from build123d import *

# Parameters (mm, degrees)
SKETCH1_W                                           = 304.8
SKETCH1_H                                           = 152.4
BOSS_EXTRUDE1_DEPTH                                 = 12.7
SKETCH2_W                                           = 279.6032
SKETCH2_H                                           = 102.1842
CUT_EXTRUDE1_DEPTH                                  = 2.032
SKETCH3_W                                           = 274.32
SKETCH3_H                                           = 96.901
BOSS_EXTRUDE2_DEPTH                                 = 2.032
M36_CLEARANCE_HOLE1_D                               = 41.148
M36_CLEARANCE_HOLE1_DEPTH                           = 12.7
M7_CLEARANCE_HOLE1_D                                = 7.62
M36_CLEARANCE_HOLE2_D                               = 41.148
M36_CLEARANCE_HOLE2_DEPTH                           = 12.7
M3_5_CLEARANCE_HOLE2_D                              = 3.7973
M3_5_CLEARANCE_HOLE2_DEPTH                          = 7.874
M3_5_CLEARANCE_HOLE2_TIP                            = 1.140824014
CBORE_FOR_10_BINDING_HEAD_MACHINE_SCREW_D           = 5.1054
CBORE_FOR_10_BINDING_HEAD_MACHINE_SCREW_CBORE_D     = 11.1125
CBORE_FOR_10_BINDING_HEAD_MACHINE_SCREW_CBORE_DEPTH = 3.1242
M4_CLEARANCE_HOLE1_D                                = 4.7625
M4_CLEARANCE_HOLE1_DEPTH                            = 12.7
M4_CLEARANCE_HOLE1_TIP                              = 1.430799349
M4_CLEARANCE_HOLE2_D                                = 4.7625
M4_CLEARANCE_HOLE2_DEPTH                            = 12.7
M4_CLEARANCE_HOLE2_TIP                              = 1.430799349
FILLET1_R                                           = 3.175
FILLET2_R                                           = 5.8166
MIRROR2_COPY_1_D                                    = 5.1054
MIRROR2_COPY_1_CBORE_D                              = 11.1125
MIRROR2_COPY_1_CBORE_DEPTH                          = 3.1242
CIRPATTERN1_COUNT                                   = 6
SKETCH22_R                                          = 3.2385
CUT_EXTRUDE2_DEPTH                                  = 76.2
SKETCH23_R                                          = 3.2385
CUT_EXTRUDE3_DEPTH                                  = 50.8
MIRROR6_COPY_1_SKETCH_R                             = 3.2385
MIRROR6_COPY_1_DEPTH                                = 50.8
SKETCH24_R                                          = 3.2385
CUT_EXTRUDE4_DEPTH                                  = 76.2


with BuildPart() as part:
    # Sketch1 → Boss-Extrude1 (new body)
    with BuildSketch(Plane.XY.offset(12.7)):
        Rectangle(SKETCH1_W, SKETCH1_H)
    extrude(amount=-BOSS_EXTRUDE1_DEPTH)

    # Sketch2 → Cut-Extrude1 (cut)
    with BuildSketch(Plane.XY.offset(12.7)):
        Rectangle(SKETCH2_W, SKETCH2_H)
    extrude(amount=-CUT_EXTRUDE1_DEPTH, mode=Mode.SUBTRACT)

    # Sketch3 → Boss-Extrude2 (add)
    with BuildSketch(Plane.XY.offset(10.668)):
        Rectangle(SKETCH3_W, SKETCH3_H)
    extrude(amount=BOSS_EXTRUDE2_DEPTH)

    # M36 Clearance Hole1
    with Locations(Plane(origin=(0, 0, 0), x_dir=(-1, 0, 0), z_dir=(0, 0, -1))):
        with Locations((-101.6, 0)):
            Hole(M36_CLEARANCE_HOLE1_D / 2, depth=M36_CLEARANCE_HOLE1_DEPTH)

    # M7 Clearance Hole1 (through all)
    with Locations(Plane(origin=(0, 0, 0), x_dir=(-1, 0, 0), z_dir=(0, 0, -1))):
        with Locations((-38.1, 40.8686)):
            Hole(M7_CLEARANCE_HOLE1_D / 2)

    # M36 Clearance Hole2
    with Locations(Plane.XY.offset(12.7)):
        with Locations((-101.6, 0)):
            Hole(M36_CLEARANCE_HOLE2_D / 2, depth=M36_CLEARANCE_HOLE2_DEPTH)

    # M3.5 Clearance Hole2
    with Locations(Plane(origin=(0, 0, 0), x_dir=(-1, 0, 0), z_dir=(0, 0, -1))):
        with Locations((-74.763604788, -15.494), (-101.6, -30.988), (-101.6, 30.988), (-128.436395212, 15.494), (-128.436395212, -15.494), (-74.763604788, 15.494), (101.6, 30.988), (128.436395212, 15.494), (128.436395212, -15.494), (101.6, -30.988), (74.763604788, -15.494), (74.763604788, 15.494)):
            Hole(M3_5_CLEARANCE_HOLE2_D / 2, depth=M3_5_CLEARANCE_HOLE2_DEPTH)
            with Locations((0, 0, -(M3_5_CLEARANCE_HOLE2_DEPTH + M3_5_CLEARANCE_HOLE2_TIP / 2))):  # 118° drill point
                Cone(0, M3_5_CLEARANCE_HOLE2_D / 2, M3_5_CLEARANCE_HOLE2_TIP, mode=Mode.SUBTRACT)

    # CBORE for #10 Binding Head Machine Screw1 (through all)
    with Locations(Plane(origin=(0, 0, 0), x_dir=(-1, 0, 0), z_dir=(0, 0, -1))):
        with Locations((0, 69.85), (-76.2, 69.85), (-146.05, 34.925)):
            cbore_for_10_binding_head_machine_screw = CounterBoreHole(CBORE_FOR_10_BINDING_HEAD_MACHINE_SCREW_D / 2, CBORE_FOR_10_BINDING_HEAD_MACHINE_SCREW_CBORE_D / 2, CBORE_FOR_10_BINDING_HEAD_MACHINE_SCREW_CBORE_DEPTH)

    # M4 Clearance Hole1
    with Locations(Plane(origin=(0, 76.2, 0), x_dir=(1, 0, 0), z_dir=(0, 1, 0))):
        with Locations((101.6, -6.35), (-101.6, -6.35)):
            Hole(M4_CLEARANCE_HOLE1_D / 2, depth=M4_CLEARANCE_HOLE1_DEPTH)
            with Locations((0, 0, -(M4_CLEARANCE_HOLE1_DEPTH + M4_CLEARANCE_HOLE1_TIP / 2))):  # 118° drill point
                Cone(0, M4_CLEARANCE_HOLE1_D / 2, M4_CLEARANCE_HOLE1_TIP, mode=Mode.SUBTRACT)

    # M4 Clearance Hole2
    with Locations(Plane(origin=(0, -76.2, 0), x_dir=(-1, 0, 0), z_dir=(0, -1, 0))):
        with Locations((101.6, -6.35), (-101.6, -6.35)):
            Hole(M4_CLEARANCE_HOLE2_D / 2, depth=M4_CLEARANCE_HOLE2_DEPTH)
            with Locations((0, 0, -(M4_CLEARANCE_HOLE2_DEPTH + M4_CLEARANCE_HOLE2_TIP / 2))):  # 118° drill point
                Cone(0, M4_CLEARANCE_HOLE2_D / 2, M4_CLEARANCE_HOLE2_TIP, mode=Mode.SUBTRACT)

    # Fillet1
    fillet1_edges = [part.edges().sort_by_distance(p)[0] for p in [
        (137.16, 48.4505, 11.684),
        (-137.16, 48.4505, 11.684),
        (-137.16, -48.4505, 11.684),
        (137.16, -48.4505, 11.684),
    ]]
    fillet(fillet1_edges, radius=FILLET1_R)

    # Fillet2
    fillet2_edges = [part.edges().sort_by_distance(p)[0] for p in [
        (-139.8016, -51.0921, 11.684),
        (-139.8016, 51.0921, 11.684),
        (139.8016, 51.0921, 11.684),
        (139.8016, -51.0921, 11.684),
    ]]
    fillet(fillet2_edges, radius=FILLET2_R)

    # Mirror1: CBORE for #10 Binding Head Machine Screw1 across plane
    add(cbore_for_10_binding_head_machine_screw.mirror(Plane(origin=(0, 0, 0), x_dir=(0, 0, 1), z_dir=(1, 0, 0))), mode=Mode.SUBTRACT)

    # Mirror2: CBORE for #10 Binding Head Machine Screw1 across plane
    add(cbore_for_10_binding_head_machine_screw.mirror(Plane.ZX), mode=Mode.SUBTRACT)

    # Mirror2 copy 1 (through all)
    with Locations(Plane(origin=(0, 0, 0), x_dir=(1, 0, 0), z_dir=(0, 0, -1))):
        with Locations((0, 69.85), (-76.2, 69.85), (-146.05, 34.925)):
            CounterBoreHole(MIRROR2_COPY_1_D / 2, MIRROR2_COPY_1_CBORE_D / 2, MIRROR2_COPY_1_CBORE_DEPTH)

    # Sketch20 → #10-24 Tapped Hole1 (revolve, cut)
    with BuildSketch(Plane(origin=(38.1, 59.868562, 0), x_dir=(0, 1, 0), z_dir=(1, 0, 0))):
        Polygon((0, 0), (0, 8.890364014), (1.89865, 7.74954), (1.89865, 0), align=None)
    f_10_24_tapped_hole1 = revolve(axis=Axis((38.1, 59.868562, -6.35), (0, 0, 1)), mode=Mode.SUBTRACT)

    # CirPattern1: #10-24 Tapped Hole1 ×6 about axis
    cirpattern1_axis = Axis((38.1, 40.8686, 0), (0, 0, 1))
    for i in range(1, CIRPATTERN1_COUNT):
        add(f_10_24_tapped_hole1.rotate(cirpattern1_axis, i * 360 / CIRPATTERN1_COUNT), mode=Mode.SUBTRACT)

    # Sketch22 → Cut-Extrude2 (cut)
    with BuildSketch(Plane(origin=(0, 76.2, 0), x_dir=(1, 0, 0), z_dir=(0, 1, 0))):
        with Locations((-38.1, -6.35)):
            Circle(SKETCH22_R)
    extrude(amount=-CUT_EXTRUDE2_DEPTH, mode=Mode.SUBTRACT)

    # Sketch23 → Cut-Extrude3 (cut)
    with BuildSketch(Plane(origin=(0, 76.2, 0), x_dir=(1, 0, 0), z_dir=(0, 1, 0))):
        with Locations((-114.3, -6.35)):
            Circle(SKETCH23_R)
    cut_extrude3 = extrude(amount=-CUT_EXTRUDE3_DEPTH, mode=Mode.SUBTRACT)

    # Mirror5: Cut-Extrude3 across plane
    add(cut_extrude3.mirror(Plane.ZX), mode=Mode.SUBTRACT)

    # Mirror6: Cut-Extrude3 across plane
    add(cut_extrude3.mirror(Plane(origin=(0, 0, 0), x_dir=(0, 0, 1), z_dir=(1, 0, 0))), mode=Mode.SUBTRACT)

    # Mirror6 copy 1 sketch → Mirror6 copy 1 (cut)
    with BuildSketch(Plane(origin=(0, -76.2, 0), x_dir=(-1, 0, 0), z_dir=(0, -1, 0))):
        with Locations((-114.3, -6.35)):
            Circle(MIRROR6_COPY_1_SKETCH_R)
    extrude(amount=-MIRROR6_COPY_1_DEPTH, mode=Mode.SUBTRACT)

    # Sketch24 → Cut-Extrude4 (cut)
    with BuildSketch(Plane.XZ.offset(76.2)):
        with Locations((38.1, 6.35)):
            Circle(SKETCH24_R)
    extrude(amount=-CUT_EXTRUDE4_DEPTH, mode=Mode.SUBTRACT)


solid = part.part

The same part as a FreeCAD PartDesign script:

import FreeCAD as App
import Part
import Sketcher
from FreeCAD import Vector
Q = App.Units.Quantity


def edges_at(feature, points):
    """Names of the edges that pass closest to the given points."""
    edges = feature.Shape.Edges
    near = lambda p: min(range(len(edges)), key=lambda i: edges[i].distToShape(Part.Vertex(*p))[0])
    return sorted({f"Edge{near(p) + 1}" for p in points})

doc = App.newDocument("Part")
params = doc.addObject("Spreadsheet::Sheet", "Params")
for row, (alias, value) in enumerate([
    ("sketch1_width", "12 in"),
    ("sketch1_height", "6 in"),
    ("pad1_length", "0.5 in"),
    ("sketch2_width", "11.008 in"),
    ("sketch2_height", "4.023 in"),
    ("pocket1_length", "0.08 in"),
    ("sketch3_width", "10.8 in"),
    ("sketch3_height", "3.815 in"),
    ("pad2_length", "0.08 in"),
    ("sketch4_diameter", "1.62 in"),
    ("hole_diameter", "1.62 in"),
    ("hole_depth", "0.5 in"),
    ("sketch5_diameter", "0.3 in"),
    ("hole2_diameter", "0.3 in"),
    ("sketch6_diameter", "1.62 in"),
    ("hole3_diameter", "1.62 in"),
    ("hole3_depth", "0.5 in"),
    ("hole4_diameter", "0.1495 in"),
    ("hole4_depth", "0.31 in"),
    ("sketch8_diameter", "0.201 in"),
    ("hole5_diameter", "0.201 in"),
    ("hole5_cbore_diameter", "0.4375 in"),
    ("hole5_cbore_depth", "0.123 in"),
    ("sketch9_diameter", "0.1875 in"),
    ("hole6_diameter", "0.1875 in"),
    ("hole6_depth", "0.5 in"),
    ("sketch10_diameter", "0.1875 in"),
    ("hole7_diameter", "0.1875 in"),
    ("hole7_depth", "0.5 in"),
    ("fillet_radius", "0.125 in"),
    ("fillet2_radius", "0.229 in"),
    ("sketch11_diameter", "0.201 in"),
    ("hole8_diameter", "0.201 in"),
    ("hole8_cbore_diameter", "0.4375 in"),
    ("hole8_cbore_depth", "0.123 in"),
    ("groove_angle", "360 deg"),
    ("sketch13_diameter", "0.255 in"),
    ("pocket2_length", "3 in"),
    ("sketch14_diameter", "0.255 in"),
    ("pocket3_length", "2 in"),
    ("sketch15_diameter", "0.255 in"),
    ("pocket4_length", "2 in"),
    ("sketch16_diameter", "0.255 in"),
    ("pocket5_length", "3 in"),
], start=1):
    params.set(f"A{row}", alias)
    params.set(f"B{row}", "=" + value)
    params.setAlias(f"B{row}", alias)

body = doc.addObject("PartDesign::Body", "Body")

# Sketch on XY plane
sketch1 = doc.addObject("Sketcher::SketchObject", "Sketch")
body.addObject(sketch1)
sketch1.AttachmentSupport = (doc.XY_Plane, [""])
sketch1.MapMode = "FlatFace"
sketch1.AttachmentOffset = App.Placement(Vector(0, 0, 0.5 * 25.4), App.Rotation())
sketch1.addGeometry(Part.LineSegment(Vector(-152.4, 76.2, 0), Vector(-152.4, -76.2, 0)), False)
sketch1.addGeometry(Part.LineSegment(Vector(-152.4, -76.2, 0), Vector(152.4, -76.2, 0)), False)
sketch1.addGeometry(Part.LineSegment(Vector(152.4, -76.2, 0), Vector(152.4, 76.2, 0)), False)
sketch1.addGeometry(Part.LineSegment(Vector(152.4, 76.2, 0), Vector(-152.4, 76.2, 0)), False)
sketch1.addConstraint(Sketcher.Constraint("Coincident", 0, 2, 1, 1))
sketch1.addConstraint(Sketcher.Constraint("Coincident", 1, 2, 2, 1))
sketch1.addConstraint(Sketcher.Constraint("Coincident", 2, 2, 3, 1))
sketch1.addConstraint(Sketcher.Constraint("Coincident", 3, 2, 0, 1))
sketch1.addConstraint(Sketcher.Constraint("Vertical", 0))
sketch1.addConstraint(Sketcher.Constraint("Horizontal", 1))
sketch1.addConstraint(Sketcher.Constraint("Vertical", 2))
sketch1.addConstraint(Sketcher.Constraint("Horizontal", 3))
sketch1.addConstraint(Sketcher.Constraint("Symmetric", 0, 2, 2, 2, -1, 1))
sketch1.addConstraint(Sketcher.Constraint("DistanceX", 1, 1, 1, 2, Q("12 in")))
sketch1.addConstraint(Sketcher.Constraint("DistanceY", 0, 2, 0, 1, Q("6 in")))
sketch1.setExpression("Constraints[9]", "Params.sketch1_width")
sketch1.setExpression("Constraints[10]", "Params.sketch1_height")
pad1 = doc.addObject("PartDesign::Pad", "Pad")
body.addObject(pad1)
pad1.Profile = sketch1
pad1.setExpression("Length", "Params.pad1_length")
pad1.Reversed = True

# Sketch on XY plane
sketch2 = doc.addObject("Sketcher::SketchObject", "Sketch001")
body.addObject(sketch2)
sketch2.AttachmentSupport = (doc.XY_Plane, [""])
sketch2.MapMode = "FlatFace"
sketch2.AttachmentOffset = App.Placement(Vector(0, 0, 0.5 * 25.4), App.Rotation())
sketch2.addGeometry(Part.LineSegment(Vector(-139.8016, 51.0921, 0), Vector(-139.8016, -51.0921, 0)), False)
sketch2.addGeometry(Part.LineSegment(Vector(-139.8016, -51.0921, 0), Vector(139.8016, -51.0921, 0)), False)
sketch2.addGeometry(Part.LineSegment(Vector(139.8016, -51.0921, 0), Vector(139.8016, 51.0921, 0)), False)
sketch2.addGeometry(Part.LineSegment(Vector(139.8016, 51.0921, 0), Vector(-139.8016, 51.0921, 0)), False)
sketch2.addConstraint(Sketcher.Constraint("Coincident", 0, 2, 1, 1))
sketch2.addConstraint(Sketcher.Constraint("Coincident", 1, 2, 2, 1))
sketch2.addConstraint(Sketcher.Constraint("Coincident", 2, 2, 3, 1))
sketch2.addConstraint(Sketcher.Constraint("Coincident", 3, 2, 0, 1))
sketch2.addConstraint(Sketcher.Constraint("Vertical", 0))
sketch2.addConstraint(Sketcher.Constraint("Horizontal", 1))
sketch2.addConstraint(Sketcher.Constraint("Vertical", 2))
sketch2.addConstraint(Sketcher.Constraint("Horizontal", 3))
sketch2.addConstraint(Sketcher.Constraint("Symmetric", 0, 2, 2, 2, -1, 1))
sketch2.addConstraint(Sketcher.Constraint("DistanceX", 1, 1, 1, 2, Q("11.008 in")))
sketch2.addConstraint(Sketcher.Constraint("DistanceY", 0, 2, 0, 1, Q("4.023 in")))
sketch2.setExpression("Constraints[9]", "Params.sketch2_width")
sketch2.setExpression("Constraints[10]", "Params.sketch2_height")
pocket1 = doc.addObject("PartDesign::Pocket", "Pocket")
body.addObject(pocket1)
pocket1.Profile = sketch2
pocket1.setExpression("Length", "Params.pocket1_length")

# Sketch on XY plane
sketch3 = doc.addObject("Sketcher::SketchObject", "Sketch002")
body.addObject(sketch3)
sketch3.AttachmentSupport = (doc.XY_Plane, [""])
sketch3.MapMode = "FlatFace"
sketch3.AttachmentOffset = App.Placement(Vector(0, 0, 0.42 * 25.4), App.Rotation())
sketch3.addGeometry(Part.LineSegment(Vector(-137.16, 48.4505, 0), Vector(-137.16, -48.4505, 0)), False)
sketch3.addGeometry(Part.LineSegment(Vector(-137.16, -48.4505, 0), Vector(137.16, -48.4505, 0)), False)
sketch3.addGeometry(Part.LineSegment(Vector(137.16, -48.4505, 0), Vector(137.16, 48.4505, 0)), False)
sketch3.addGeometry(Part.LineSegment(Vector(137.16, 48.4505, 0), Vector(-137.16, 48.4505, 0)), False)
sketch3.addConstraint(Sketcher.Constraint("Coincident", 0, 2, 1, 1))
sketch3.addConstraint(Sketcher.Constraint("Coincident", 1, 2, 2, 1))
sketch3.addConstraint(Sketcher.Constraint("Coincident", 2, 2, 3, 1))
sketch3.addConstraint(Sketcher.Constraint("Coincident", 3, 2, 0, 1))
sketch3.addConstraint(Sketcher.Constraint("Vertical", 0))
sketch3.addConstraint(Sketcher.Constraint("Horizontal", 1))
sketch3.addConstraint(Sketcher.Constraint("Vertical", 2))
sketch3.addConstraint(Sketcher.Constraint("Horizontal", 3))
sketch3.addConstraint(Sketcher.Constraint("Symmetric", 0, 2, 2, 2, -1, 1))
sketch3.addConstraint(Sketcher.Constraint("DistanceX", 1, 1, 1, 2, Q("10.8 in")))
sketch3.addConstraint(Sketcher.Constraint("DistanceY", 0, 2, 0, 1, Q("3.815 in")))
sketch3.setExpression("Constraints[9]", "Params.sketch3_width")
sketch3.setExpression("Constraints[10]", "Params.sketch3_height")
pad2 = doc.addObject("PartDesign::Pad", "Pad001")
body.addObject(pad2)
pad2.Profile = sketch3
pad2.setExpression("Length", "Params.pad2_length")

# Sketch on XY plane
sketch4 = doc.addObject("Sketcher::SketchObject", "Sketch003")
body.addObject(sketch4)
sketch4.AttachmentSupport = (doc.XY_Plane, [""])
sketch4.MapMode = "FlatFace"
sketch4.addGeometry(Part.Circle(Vector(101.6, 0, 0), Vector(0, 0, 1), 20.574), False)
sketch4.addConstraint(Sketcher.Constraint("PointOnObject", 0, 3, -1))
sketch4.addConstraint(Sketcher.Constraint("Diameter", 0, Q("1.62 in")))
sketch4.addConstraint(Sketcher.Constraint("DistanceX", -1, 1, 0, 3, Q("4 in")))
sketch4.setExpression("Constraints[1]", "Params.sketch4_diameter")
doc.recompute()
hole = doc.addObject("PartDesign::Hole", "Hole")
body.addObject(hole)
hole.Profile = sketch4
hole.ThreadType = "None"
hole.setExpression("Diameter", "Params.hole_diameter")
hole.DepthType = "Dimension"
hole.setExpression("Depth", "Params.hole_depth")
hole.DrillPoint = "Flat"
hole.Reversed = True

# Sketch on XY plane
sketch5 = doc.addObject("Sketcher::SketchObject", "Sketch004")
body.addObject(sketch5)
sketch5.AttachmentSupport = (doc.XY_Plane, [""])
sketch5.MapMode = "FlatFace"
sketch5.addGeometry(Part.Circle(Vector(38.1, 40.8686, 0), Vector(0, 0, 1), 3.81), False)
sketch5.addConstraint(Sketcher.Constraint("Diameter", 0, Q("0.3 in")))
sketch5.addConstraint(Sketcher.Constraint("DistanceX", -1, 1, 0, 3, Q("1.5 in")))
sketch5.addConstraint(Sketcher.Constraint("DistanceY", -1, 1, 0, 3, Q("1.609 in")))
sketch5.setExpression("Constraints[0]", "Params.sketch5_diameter")
doc.recompute()
hole2 = doc.addObject("PartDesign::Hole", "Hole001")
body.addObject(hole2)
hole2.Profile = sketch5
hole2.ThreadType = "None"
hole2.setExpression("Diameter", "Params.hole2_diameter")
hole2.DepthType = "ThroughAll"
hole2.Reversed = True

# Sketch on XY plane
sketch6 = doc.addObject("Sketcher::SketchObject", "Sketch005")
body.addObject(sketch6)
sketch6.AttachmentSupport = (doc.XY_Plane, [""])
sketch6.MapMode = "FlatFace"
sketch6.AttachmentOffset = App.Placement(Vector(0, 0, 0.5 * 25.4), App.Rotation())
sketch6.addGeometry(Part.Circle(Vector(-101.6, 0, 0), Vector(0, 0, 1), 20.574), False)
sketch6.addConstraint(Sketcher.Constraint("PointOnObject", 0, 3, -1))
sketch6.addConstraint(Sketcher.Constraint("Diameter", 0, Q("1.62 in")))
sketch6.addConstraint(Sketcher.Constraint("DistanceX", 0, 3, -1, 1, Q("4 in")))
sketch6.setExpression("Constraints[1]", "Params.sketch6_diameter")
doc.recompute()
hole3 = doc.addObject("PartDesign::Hole", "Hole002")
body.addObject(hole3)
hole3.Profile = sketch6
hole3.ThreadType = "None"
hole3.setExpression("Diameter", "Params.hole3_diameter")
hole3.DepthType = "Dimension"
hole3.setExpression("Depth", "Params.hole3_depth")
hole3.DrillPoint = "Flat"

# Sketch on XY plane
sketch7 = doc.addObject("Sketcher::SketchObject", "Sketch006")
body.addObject(sketch7)
sketch7.AttachmentSupport = (doc.XY_Plane, [""])
sketch7.MapMode = "FlatFace"
sketch7.addGeometry(Part.Circle(Vector(74.763605, -15.494, 0), Vector(0, 0, 1), 1.89865), False)
sketch7.addGeometry(Part.Circle(Vector(101.6, -30.988, 0), Vector(0, 0, 1), 1.89865), False)
sketch7.addGeometry(Part.Circle(Vector(101.6, 30.988, 0), Vector(0, 0, 1), 1.89865), False)
sketch7.addGeometry(Part.Circle(Vector(128.436395, 15.494, 0), Vector(0, 0, 1), 1.89865), False)
sketch7.addGeometry(Part.Circle(Vector(128.436395, -15.494, 0), Vector(0, 0, 1), 1.89865), False)
sketch7.addGeometry(Part.Circle(Vector(74.763605, 15.494, 0), Vector(0, 0, 1), 1.89865), False)
sketch7.addGeometry(Part.Circle(Vector(-101.6, 30.988, 0), Vector(0, 0, 1), 1.89865), False)
sketch7.addGeometry(Part.Circle(Vector(-128.436395, 15.494, 0), Vector(0, 0, 1), 1.89865), False)
sketch7.addGeometry(Part.Circle(Vector(-128.436395, -15.494, 0), Vector(0, 0, 1), 1.89865), False)
sketch7.addGeometry(Part.Circle(Vector(-101.6, -30.988, 0), Vector(0, 0, 1), 1.89865), False)
sketch7.addGeometry(Part.Circle(Vector(-74.763605, -15.494, 0), Vector(0, 0, 1), 1.89865), False)
sketch7.addGeometry(Part.Circle(Vector(-74.763605, 15.494, 0), Vector(0, 0, 1), 1.89865), False)
sketch7.addConstraint(Sketcher.Constraint("Equal", 0, 1))
sketch7.addConstraint(Sketcher.Constraint("Equal", 1, 2))
sketch7.addConstraint(Sketcher.Constraint("Equal", 2, 3))
sketch7.addConstraint(Sketcher.Constraint("Equal", 3, 4))
sketch7.addConstraint(Sketcher.Constraint("Equal", 4, 5))
sketch7.addConstraint(Sketcher.Constraint("Equal", 5, 6))
sketch7.addConstraint(Sketcher.Constraint("Equal", 6, 7))
sketch7.addConstraint(Sketcher.Constraint("Equal", 7, 8))
sketch7.addConstraint(Sketcher.Constraint("Equal", 8, 9))
sketch7.addConstraint(Sketcher.Constraint("Equal", 9, 10))
sketch7.addConstraint(Sketcher.Constraint("Equal", 10, 11))
sketch7.addConstraint(Sketcher.Constraint("Symmetric", 1, 3, 6, 3, -1, 1))
sketch7.addConstraint(Sketcher.Constraint("Symmetric", 4, 3, 7, 3, -1, 1))
sketch7.addConstraint(Sketcher.Constraint("Symmetric", 3, 3, 8, 3, -1, 1))
sketch7.addConstraint(Sketcher.Constraint("Symmetric", 2, 3, 9, 3, -1, 1))
sketch7.addConstraint(Sketcher.Constraint("Symmetric", 5, 3, 10, 3, -1, 1))
sketch7.addConstraint(Sketcher.Constraint("Symmetric", 0, 3, 11, 3, -1, 1))
sketch7.addConstraint(Sketcher.Constraint("Symmetric", 2, 3, 6, 3, -2))
sketch7.addConstraint(Sketcher.Constraint("Symmetric", 3, 3, 7, 3, -2))
sketch7.addConstraint(Sketcher.Constraint("Symmetric", 0, 3, 10, 3, -2))
sketch7.addConstraint(Sketcher.Constraint("Horizontal", 0, 3, 4, 3))
sketch7.addConstraint(Sketcher.Constraint("DistanceX", -1, 1, 1, 3, Q("4 in")))
sketch7.addConstraint(Sketcher.Constraint("DistanceX", 7, 3, 5, 3, Q("8 in")))
sketch7.addConstraint(Sketcher.Constraint("Diameter", 0, Q("0.1495 in")))
sketch7.addConstraint(Sketcher.Constraint("DistanceY", 0, 3, -1, 1, Q("0.61 in")))
sketch7.addConstraint(Sketcher.Constraint("DistanceY", 1, 3, -1, 1, Q("1.22 in")))
sketch7.addConstraint(Sketcher.Constraint("DistanceX", 0, 3, 3, 3, Q("53.67279 mm")))
doc.recompute()
hole4 = doc.addObject("PartDesign::Hole", "Hole003")
body.addObject(hole4)
hole4.Profile = sketch7
hole4.ThreadType = "None"
hole4.setExpression("Diameter", "Params.hole4_diameter")
hole4.DepthType = "Dimension"
hole4.setExpression("Depth", "Params.hole4_depth")
hole4.DrillPoint = "Angled"
hole4.DrillPointAngle = 118
hole4.Reversed = True

# Sketch on XY plane
sketch8 = doc.addObject("Sketcher::SketchObject", "Sketch007")
body.addObject(sketch8)
sketch8.AttachmentSupport = (doc.XY_Plane, [""])
sketch8.MapMode = "FlatFace"
sketch8.addGeometry(Part.Circle(Vector(0, 69.85, 0), Vector(0, 0, 1), 2.5527), False)
sketch8.addGeometry(Part.Circle(Vector(76.2, 69.85, 0), Vector(0, 0, 1), 2.5527), False)
sketch8.addGeometry(Part.Circle(Vector(146.05, 34.925, 0), Vector(0, 0, 1), 2.5527), False)
sketch8.addConstraint(Sketcher.Constraint("Equal", 0, 1))
sketch8.addConstraint(Sketcher.Constraint("Equal", 1, 2))
sketch8.addConstraint(Sketcher.Constraint("PointOnObject", 0, 3, -2))
sketch8.addConstraint(Sketcher.Constraint("Horizontal", 0, 3, 1, 3))
sketch8.addConstraint(Sketcher.Constraint("Diameter", 0, Q("0.201 in")))
sketch8.addConstraint(Sketcher.Constraint("DistanceX", -1, 1, 1, 3, Q("3 in")))
sketch8.addConstraint(Sketcher.Constraint("DistanceY", -1, 1, 0, 3, Q("2.75 in")))
sketch8.addConstraint(Sketcher.Constraint("DistanceX", -1, 1, 2, 3, Q("5.75 in")))
sketch8.addConstraint(Sketcher.Constraint("DistanceY", -1, 1, 2, 3, Q("1.375 in")))
sketch8.setExpression("Constraints[4]", "Params.sketch8_diameter")
doc.recompute()
hole5 = doc.addObject("PartDesign::Hole", "Hole004")
body.addObject(hole5)
hole5.Profile = sketch8
hole5.ThreadType = "None"
hole5.setExpression("Diameter", "Params.hole5_diameter")
hole5.DepthType = "ThroughAll"
hole5.HoleCutType = "Counterbore"
hole5.setExpression("HoleCutDiameter", "Params.hole5_cbore_diameter")
hole5.setExpression("HoleCutDepth", "Params.hole5_cbore_depth")
hole5.Reversed = True

# Sketch on XZ plane
sketch9 = doc.addObject("Sketcher::SketchObject", "Sketch008")
body.addObject(sketch9)
sketch9.AttachmentSupport = (doc.XZ_Plane, [""])
sketch9.MapMode = "FlatFace"
sketch9.AttachmentOffset = App.Placement(Vector(0, 0, -3 * 25.4), App.Rotation())
sketch9.addGeometry(Part.Circle(Vector(101.6, 6.35, 0), Vector(0, 0, 1), 2.38125), False)
sketch9.addGeometry(Part.Circle(Vector(-101.6, 6.35, 0), Vector(0, 0, 1), 2.38125), False)
sketch9.addConstraint(Sketcher.Constraint("Equal", 0, 1))
sketch9.addConstraint(Sketcher.Constraint("Symmetric", 0, 3, 1, 3, -2))
sketch9.addConstraint(Sketcher.Constraint("Diameter", 0, Q("0.1875 in")))
sketch9.addConstraint(Sketcher.Constraint("DistanceX", -1, 1, 0, 3, Q("4 in")))
sketch9.addConstraint(Sketcher.Constraint("DistanceY", -1, 1, 0, 3, Q("0.25 in")))
sketch9.setExpression("Constraints[2]", "Params.sketch9_diameter")
doc.recompute()
hole6 = doc.addObject("PartDesign::Hole", "Hole005")
body.addObject(hole6)
hole6.Profile = sketch9
hole6.ThreadType = "None"
hole6.setExpression("Diameter", "Params.hole6_diameter")
hole6.DepthType = "Dimension"
hole6.setExpression("Depth", "Params.hole6_depth")
hole6.DrillPoint = "Angled"
hole6.DrillPointAngle = 118
hole6.Reversed = True

# Sketch on XZ plane
sketch10 = doc.addObject("Sketcher::SketchObject", "Sketch009")
body.addObject(sketch10)
sketch10.AttachmentSupport = (doc.XZ_Plane, [""])
sketch10.MapMode = "FlatFace"
sketch10.AttachmentOffset = App.Placement(Vector(0, 0, 3 * 25.4), App.Rotation())
sketch10.addGeometry(Part.Circle(Vector(-101.6, 6.35, 0), Vector(0, 0, 1), 2.38125), False)
sketch10.addGeometry(Part.Circle(Vector(101.6, 6.35, 0), Vector(0, 0, 1), 2.38125), False)
sketch10.addConstraint(Sketcher.Constraint("Equal", 0, 1))
sketch10.addConstraint(Sketcher.Constraint("Symmetric", 0, 3, 1, 3, -2))
sketch10.addConstraint(Sketcher.Constraint("Diameter", 0, Q("0.1875 in")))
sketch10.addConstraint(Sketcher.Constraint("DistanceX", 0, 3, -1, 1, Q("4 in")))
sketch10.addConstraint(Sketcher.Constraint("DistanceY", -1, 1, 0, 3, Q("0.25 in")))
sketch10.setExpression("Constraints[2]", "Params.sketch10_diameter")
doc.recompute()
hole7 = doc.addObject("PartDesign::Hole", "Hole006")
body.addObject(hole7)
hole7.Profile = sketch10
hole7.ThreadType = "None"
hole7.setExpression("Diameter", "Params.hole7_diameter")
hole7.DepthType = "Dimension"
hole7.setExpression("Depth", "Params.hole7_depth")
hole7.DrillPoint = "Angled"
hole7.DrillPointAngle = 118
doc.recompute()

fillet = doc.addObject("PartDesign::Fillet", "Fillet")
body.addObject(fillet)
fillet.Base = (hole7, edges_at(hole7, [
    (137.16, 48.45, 11.684),
    (-137.16, 48.45, 11.684),
    (-137.16, -48.45, 11.684),
    (137.16, -48.45, 11.684),
]))
fillet.setExpression("Radius", "Params.fillet_radius")
doc.recompute()

fillet2 = doc.addObject("PartDesign::Fillet", "Fillet001")
body.addObject(fillet2)
fillet2.Base = (fillet, edges_at(fillet, [
    (-139.802, -51.092, 11.684),
    (-139.802, 51.092, 11.684),
    (139.802, 51.092, 11.684),
    (139.802, -51.092, 11.684),
]))
fillet2.setExpression("Radius", "Params.fillet2_radius")
doc.recompute()

mirrored = doc.addObject("PartDesign::Mirrored", "Mirrored")
body.addObject(mirrored)
mirrored.Originals = [hole5]
mirrored.MirrorPlane = (doc.YZ_Plane, [""])
body.Tip = mirrored
doc.recompute()

mirrored2 = doc.addObject("PartDesign::Mirrored", "Mirrored001")
body.addObject(mirrored2)
mirrored2.Originals = [hole5]
mirrored2.MirrorPlane = (doc.XZ_Plane, [""])
body.Tip = mirrored2

# Sketch on XY plane
sketch11 = doc.addObject("Sketcher::SketchObject", "Sketch010")
body.addObject(sketch11)
sketch11.AttachmentSupport = (doc.XY_Plane, [""])
sketch11.MapMode = "FlatFace"
sketch11.addGeometry(Part.Circle(Vector(0, -69.85, 0), Vector(0, 0, 1), 2.5527), False)
sketch11.addGeometry(Part.Circle(Vector(-76.2, -69.85, 0), Vector(0, 0, 1), 2.5527), False)
sketch11.addGeometry(Part.Circle(Vector(-146.05, -34.925, 0), Vector(0, 0, 1), 2.5527), False)
sketch11.addConstraint(Sketcher.Constraint("Equal", 0, 1))
sketch11.addConstraint(Sketcher.Constraint("Equal", 1, 2))
sketch11.addConstraint(Sketcher.Constraint("PointOnObject", 0, 3, -2))
sketch11.addConstraint(Sketcher.Constraint("Horizontal", 0, 3, 1, 3))
sketch11.addConstraint(Sketcher.Constraint("Diameter", 0, Q("0.201 in")))
sketch11.addConstraint(Sketcher.Constraint("DistanceX", 1, 3, -1, 1, Q("3 in")))
sketch11.addConstraint(Sketcher.Constraint("DistanceY", 0, 3, -1, 1, Q("2.75 in")))
sketch11.addConstraint(Sketcher.Constraint("DistanceX", 2, 3, -1, 1, Q("5.75 in")))
sketch11.addConstraint(Sketcher.Constraint("DistanceY", 2, 3, -1, 1, Q("1.375 in")))
sketch11.setExpression("Constraints[4]", "Params.sketch11_diameter")
doc.recompute()
hole8 = doc.addObject("PartDesign::Hole", "Hole007")
body.addObject(hole8)
hole8.Profile = sketch11
hole8.ThreadType = "None"
hole8.setExpression("Diameter", "Params.hole8_diameter")
hole8.DepthType = "ThroughAll"
hole8.HoleCutType = "Counterbore"
hole8.setExpression("HoleCutDiameter", "Params.hole8_cbore_diameter")
hole8.setExpression("HoleCutDepth", "Params.hole8_cbore_depth")
hole8.Reversed = True

# Sketch on YZ plane
sketch12 = doc.addObject("Sketcher::SketchObject", "Sketch011")
body.addObject(sketch12)
sketch12.AttachmentSupport = (doc.YZ_Plane, [""])
sketch12.MapMode = "FlatFace"
sketch12.AttachmentOffset = App.Placement(Vector(0, 0, 1.5 * 25.4), App.Rotation())
sketch12.addGeometry(Part.LineSegment(Vector(59.868562, 8.890364, 0), Vector(59.868562, 0, 0)), False)
sketch12.addGeometry(Part.LineSegment(Vector(59.868562, 0, 0), Vector(61.767212, 0, 0)), False)
sketch12.addGeometry(Part.LineSegment(Vector(61.767212, 0, 0), Vector(61.767212, 7.74954, 0)), False)
sketch12.addGeometry(Part.LineSegment(Vector(61.767212, 7.74954, 0), Vector(59.868562, 8.890364, 0)), False)
sketch12.addGeometry(Part.LineSegment(Vector(59.868562, 0, 0), Vector(59.868562, 8.890364, 0)), True)  # axis
sketch12.addConstraint(Sketcher.Constraint("Coincident", 0, 2, 1, 1))
sketch12.addConstraint(Sketcher.Constraint("Coincident", 1, 2, 2, 1))
sketch12.addConstraint(Sketcher.Constraint("Coincident", 2, 2, 3, 1))
sketch12.addConstraint(Sketcher.Constraint("Coincident", 3, 2, 0, 1))
sketch12.addConstraint(Sketcher.Constraint("Vertical", 0))
sketch12.addConstraint(Sketcher.Constraint("Horizontal", 1))
sketch12.addConstraint(Sketcher.Constraint("Vertical", 2))
sketch12.addConstraint(Sketcher.Constraint("Vertical", 4))
sketch12.addConstraint(Sketcher.Constraint("Coincident", 4, 1, 0, 2))
sketch12.addConstraint(Sketcher.Constraint("PointOnObject", 0, 2, -1))
sketch12.addConstraint(Sketcher.Constraint("Equal", 0, 4))
sketch12.addConstraint(Sketcher.Constraint("Angle", 3, Q("149 deg")))
sketch12.addConstraint(Sketcher.Constraint("DistanceY", 2, 1, 2, 2, Q("0.3051 in")))
sketch12.addConstraint(Sketcher.Constraint("DistanceX", 1, 1, 1, 2, Q("1.89865 mm")))
sketch12.addConstraint(Sketcher.Constraint("DistanceX", -1, 1, 0, 2, Q("59.868562 mm")))
groove = doc.addObject("PartDesign::Groove", "Groove")
body.addObject(groove)
groove.Profile = sketch12
groove.ReferenceAxis = (sketch12, ["Axis0"])
groove.setExpression("Angle", "Params.groove_angle")
doc.recompute()

datumline = doc.addObject("PartDesign::Line", "DatumLine")
body.addObject(datumline)
datumline.Placement = App.Placement(Vector(38.1, 40.8686, 0), App.Rotation(Vector(0, 0, 1), Vector(0, 0, 1)))
polarpattern = doc.addObject("PartDesign::PolarPattern", "PolarPattern")
body.addObject(polarpattern)
polarpattern.Originals = [groove]
polarpattern.Axis = (datumline, [""])
polarpattern.Angle = 360
polarpattern.Occurrences = 6
body.Tip = polarpattern

# Sketch on XZ plane
sketch13 = doc.addObject("Sketcher::SketchObject", "Sketch012")
body.addObject(sketch13)
sketch13.AttachmentSupport = (doc.XZ_Plane, [""])
sketch13.MapMode = "FlatFace"
sketch13.AttachmentOffset = App.Placement(Vector(0, 0, -3 * 25.4), App.Rotation())
sketch13.addGeometry(Part.Circle(Vector(-38.1, 6.35, 0), Vector(0, 0, 1), 3.2385), False)
sketch13.addConstraint(Sketcher.Constraint("Diameter", 0, Q("0.255 in")))
sketch13.addConstraint(Sketcher.Constraint("DistanceX", 0, 3, -1, 1, Q("1.5 in")))
sketch13.addConstraint(Sketcher.Constraint("DistanceY", -1, 1, 0, 3, Q("0.25 in")))
sketch13.setExpression("Constraints[0]", "Params.sketch13_diameter")
pocket2 = doc.addObject("PartDesign::Pocket", "Pocket001")
body.addObject(pocket2)
pocket2.Profile = sketch13
pocket2.setExpression("Length", "Params.pocket2_length")
pocket2.Reversed = True

# Sketch on XZ plane
sketch14 = doc.addObject("Sketcher::SketchObject", "Sketch013")
body.addObject(sketch14)
sketch14.AttachmentSupport = (doc.XZ_Plane, [""])
sketch14.MapMode = "FlatFace"
sketch14.AttachmentOffset = App.Placement(Vector(0, 0, -3 * 25.4), App.Rotation())
sketch14.addGeometry(Part.Circle(Vector(-114.3, 6.35, 0), Vector(0, 0, 1), 3.2385), False)
sketch14.addConstraint(Sketcher.Constraint("Diameter", 0, Q("0.255 in")))
sketch14.addConstraint(Sketcher.Constraint("DistanceX", 0, 3, -1, 1, Q("4.5 in")))
sketch14.addConstraint(Sketcher.Constraint("DistanceY", -1, 1, 0, 3, Q("0.25 in")))
sketch14.setExpression("Constraints[0]", "Params.sketch14_diameter")
pocket3 = doc.addObject("PartDesign::Pocket", "Pocket002")
body.addObject(pocket3)
pocket3.Profile = sketch14
pocket3.setExpression("Length", "Params.pocket3_length")
pocket3.Reversed = True
doc.recompute()

mirrored3 = doc.addObject("PartDesign::Mirrored", "Mirrored002")
body.addObject(mirrored3)
mirrored3.Originals = [pocket3]
mirrored3.MirrorPlane = (doc.XZ_Plane, [""])
body.Tip = mirrored3
doc.recompute()

mirrored4 = doc.addObject("PartDesign::Mirrored", "Mirrored003")
body.addObject(mirrored4)
mirrored4.Originals = [pocket3]
mirrored4.MirrorPlane = (doc.YZ_Plane, [""])
body.Tip = mirrored4

# Sketch on XZ plane
sketch15 = doc.addObject("Sketcher::SketchObject", "Sketch014")
body.addObject(sketch15)
sketch15.AttachmentSupport = (doc.XZ_Plane, [""])
sketch15.MapMode = "FlatFace"
sketch15.AttachmentOffset = App.Placement(Vector(0, 0, 3 * 25.4), App.Rotation())
sketch15.addGeometry(Part.Circle(Vector(114.3, 6.35, 0), Vector(0, 0, 1), 3.2385), False)
sketch15.addConstraint(Sketcher.Constraint("Diameter", 0, Q("0.255 in")))
sketch15.addConstraint(Sketcher.Constraint("DistanceX", -1, 1, 0, 3, Q("4.5 in")))
sketch15.addConstraint(Sketcher.Constraint("DistanceY", -1, 1, 0, 3, Q("0.25 in")))
sketch15.setExpression("Constraints[0]", "Params.sketch15_diameter")
pocket4 = doc.addObject("PartDesign::Pocket", "Pocket003")
body.addObject(pocket4)
pocket4.Profile = sketch15
pocket4.setExpression("Length", "Params.pocket4_length")

# Sketch on XZ plane
sketch16 = doc.addObject("Sketcher::SketchObject", "Sketch015")
body.addObject(sketch16)
sketch16.AttachmentSupport = (doc.XZ_Plane, [""])
sketch16.MapMode = "FlatFace"
sketch16.AttachmentOffset = App.Placement(Vector(0, 0, 3 * 25.4), App.Rotation())
sketch16.addGeometry(Part.Circle(Vector(38.1, 6.35, 0), Vector(0, 0, 1), 3.2385), False)
sketch16.addConstraint(Sketcher.Constraint("Diameter", 0, Q("0.255 in")))
sketch16.addConstraint(Sketcher.Constraint("DistanceX", -1, 1, 0, 3, Q("1.5 in")))
sketch16.addConstraint(Sketcher.Constraint("DistanceY", -1, 1, 0, 3, Q("0.25 in")))
sketch16.setExpression("Constraints[0]", "Params.sketch16_diameter")
pocket5 = doc.addObject("PartDesign::Pocket", "Pocket004")
body.addObject(pocket5)
pocket5.Profile = sketch16
pocket5.setExpression("Length", "Params.pocket5_length")

doc.recompute()
